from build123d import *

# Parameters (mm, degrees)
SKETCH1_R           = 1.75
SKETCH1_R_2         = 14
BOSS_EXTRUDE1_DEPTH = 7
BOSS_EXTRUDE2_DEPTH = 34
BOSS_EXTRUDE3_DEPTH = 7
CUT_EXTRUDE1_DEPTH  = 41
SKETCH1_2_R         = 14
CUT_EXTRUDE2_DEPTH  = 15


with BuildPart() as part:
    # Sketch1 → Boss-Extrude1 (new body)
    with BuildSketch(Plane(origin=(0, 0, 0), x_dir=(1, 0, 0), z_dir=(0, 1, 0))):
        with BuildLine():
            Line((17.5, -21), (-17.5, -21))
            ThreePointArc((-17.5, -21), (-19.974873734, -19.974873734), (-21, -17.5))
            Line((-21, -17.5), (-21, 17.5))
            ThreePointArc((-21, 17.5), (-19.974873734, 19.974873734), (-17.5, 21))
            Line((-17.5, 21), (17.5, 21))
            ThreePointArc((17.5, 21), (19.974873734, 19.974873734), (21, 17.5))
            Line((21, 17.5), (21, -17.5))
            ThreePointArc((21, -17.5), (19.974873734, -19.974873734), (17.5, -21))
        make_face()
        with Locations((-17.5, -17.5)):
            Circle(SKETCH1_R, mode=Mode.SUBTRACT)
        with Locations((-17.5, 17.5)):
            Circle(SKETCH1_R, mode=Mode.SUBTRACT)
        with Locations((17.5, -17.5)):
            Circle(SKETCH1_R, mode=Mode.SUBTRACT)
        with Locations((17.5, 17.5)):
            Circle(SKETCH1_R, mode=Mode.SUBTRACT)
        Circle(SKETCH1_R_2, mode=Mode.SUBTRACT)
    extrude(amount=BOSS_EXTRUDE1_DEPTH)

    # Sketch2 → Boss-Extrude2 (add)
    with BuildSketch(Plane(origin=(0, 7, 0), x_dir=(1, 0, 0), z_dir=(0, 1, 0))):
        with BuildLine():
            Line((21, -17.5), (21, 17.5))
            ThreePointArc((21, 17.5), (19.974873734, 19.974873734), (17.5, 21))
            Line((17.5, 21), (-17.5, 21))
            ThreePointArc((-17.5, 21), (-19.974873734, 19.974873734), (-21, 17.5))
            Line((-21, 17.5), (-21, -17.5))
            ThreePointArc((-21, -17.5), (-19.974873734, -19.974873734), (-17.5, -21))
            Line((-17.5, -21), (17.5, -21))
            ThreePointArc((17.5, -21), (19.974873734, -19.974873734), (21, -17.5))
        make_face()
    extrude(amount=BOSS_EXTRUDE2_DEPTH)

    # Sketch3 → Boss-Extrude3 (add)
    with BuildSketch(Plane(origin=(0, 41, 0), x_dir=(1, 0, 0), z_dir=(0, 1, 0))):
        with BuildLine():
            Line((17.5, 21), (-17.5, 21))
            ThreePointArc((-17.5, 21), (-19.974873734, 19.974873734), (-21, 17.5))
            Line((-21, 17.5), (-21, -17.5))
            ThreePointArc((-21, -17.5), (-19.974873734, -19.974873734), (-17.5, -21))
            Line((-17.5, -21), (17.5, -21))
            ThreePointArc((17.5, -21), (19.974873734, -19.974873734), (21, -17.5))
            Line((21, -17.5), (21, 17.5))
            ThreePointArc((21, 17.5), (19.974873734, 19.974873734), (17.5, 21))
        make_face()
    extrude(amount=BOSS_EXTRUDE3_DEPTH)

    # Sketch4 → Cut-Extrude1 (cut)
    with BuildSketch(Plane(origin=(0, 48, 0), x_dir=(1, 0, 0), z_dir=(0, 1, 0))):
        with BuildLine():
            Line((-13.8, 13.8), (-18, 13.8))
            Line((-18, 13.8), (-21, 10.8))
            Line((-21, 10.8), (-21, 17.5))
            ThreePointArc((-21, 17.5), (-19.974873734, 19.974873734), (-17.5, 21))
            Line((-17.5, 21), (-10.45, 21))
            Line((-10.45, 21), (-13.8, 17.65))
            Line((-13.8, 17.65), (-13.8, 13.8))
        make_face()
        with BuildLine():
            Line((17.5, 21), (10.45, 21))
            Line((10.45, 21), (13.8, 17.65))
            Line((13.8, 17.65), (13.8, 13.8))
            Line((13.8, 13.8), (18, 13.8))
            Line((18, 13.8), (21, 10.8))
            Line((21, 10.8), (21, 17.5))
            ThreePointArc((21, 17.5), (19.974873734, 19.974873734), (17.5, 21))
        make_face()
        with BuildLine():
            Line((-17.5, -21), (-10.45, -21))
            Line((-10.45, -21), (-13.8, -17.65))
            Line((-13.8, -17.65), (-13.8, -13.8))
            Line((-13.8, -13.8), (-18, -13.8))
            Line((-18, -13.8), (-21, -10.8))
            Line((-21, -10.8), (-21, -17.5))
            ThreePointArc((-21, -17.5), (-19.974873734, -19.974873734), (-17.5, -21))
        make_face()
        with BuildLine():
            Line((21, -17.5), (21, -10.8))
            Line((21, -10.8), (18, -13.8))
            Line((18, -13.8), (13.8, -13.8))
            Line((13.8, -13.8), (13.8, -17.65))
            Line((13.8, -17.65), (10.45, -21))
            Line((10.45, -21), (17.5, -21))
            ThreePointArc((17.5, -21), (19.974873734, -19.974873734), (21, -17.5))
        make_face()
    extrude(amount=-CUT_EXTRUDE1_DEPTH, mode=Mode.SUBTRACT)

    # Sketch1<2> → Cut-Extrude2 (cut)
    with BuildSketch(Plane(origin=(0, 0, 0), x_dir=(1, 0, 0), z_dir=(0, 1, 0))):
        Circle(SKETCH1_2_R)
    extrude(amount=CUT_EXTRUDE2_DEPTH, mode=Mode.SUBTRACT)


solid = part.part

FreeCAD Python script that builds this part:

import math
import FreeCAD as App
import Part
import Sketcher
from FreeCAD import Vector

doc = App.newDocument("Part")
params = doc.addObject("Spreadsheet::Sheet", "Params")
for row, (alias, value) in enumerate([
    ("sketch1_diameter", "28 mm"),
    ("sketch1_diameter2", "3.5 mm"),
    ("sketch1_radius", "3.5 mm"),
    ("sketch1_width", "35 mm"),
    ("pad1_length", "7 mm"),
    ("sketch2_radius", "3.5 mm"),
    ("sketch2_width", "35 mm"),
    ("pad2_length", "34 mm"),
    ("sketch3_radius", "3.5 mm"),
    ("sketch3_width", "35 mm"),
    ("pad3_length", "7 mm"),
    ("sketch4_radius", "3.5 mm"),
    ("sketch4_width", "4.2 mm"),
    ("sketch4_height", "6.7 mm"),
    ("sketch4_width2", "7.05 mm"),
    ("pocket1_length", "41 mm"),
    ("sketch5_diameter", "28 mm"),
    ("pocket2_length", "15 mm"),
], start=1):
    params.set(f"A{row}", alias)
    params.set(f"B{row}", "=" + value)
    params.setAlias(f"B{row}", alias)

body = doc.addObject("PartDesign::Body", "Body")

# Sketch on XZ plane
sketch1 = body.newObject("Sketcher::SketchObject", "Sketch")
sketch1.AttachmentSupport = (doc.getObject("XZ_Plane"), [""])
sketch1.MapMode = "FlatFace"
sketch1.addGeometry([
    Part.LineSegment(Vector(-17.5, 21, 0), Vector(17.5, 21, 0)),  # 0
    Part.ArcOfCircle(Part.Circle(Vector(17.5, 17.5, 0), Vector(0, 0, 1), 3.5), math.radians(0), math.radians(90)),  # 1
    Part.LineSegment(Vector(21, 17.5, 0), Vector(21, -17.5, 0)),  # 2
    Part.ArcOfCircle(Part.Circle(Vector(17.5, -17.5, 0), Vector(0, 0, 1), 3.5), math.radians(-90), math.radians(0)),  # 3
    Part.LineSegment(Vector(17.5, -21, 0), Vector(-17.5, -21, 0)),  # 4
    Part.ArcOfCircle(Part.Circle(Vector(-17.5, -17.5, 0), Vector(0, 0, 1), 3.5), math.radians(-180), math.radians(-90)),  # 5
    Part.LineSegment(Vector(-21, -17.5, 0), Vector(-21, 17.5, 0)),  # 6
    Part.ArcOfCircle(Part.Circle(Vector(-17.5, 17.5, 0), Vector(0, 0, 1), 3.5), math.radians(90), math.radians(180)),  # 7
    Part.Circle(Vector(17.5, 17.5, 0), Vector(0, 0, 1), 1.8),  # 8
    Part.Circle(Vector(-17.5, 17.5, 0), Vector(0, 0, 1), 1.8),  # 9
    Part.Circle(Vector(17.5, -17.5, 0), Vector(0, 0, 1), 1.8),  # 10
    Part.Circle(Vector(0, 0, 0), Vector(0, 0, 1), 14),  # 11
    Part.Circle(Vector(-17.5, -17.5, 0), Vector(0, 0, 1), 1.8),  # 12
], False)
sketch1.addConstraint([
    Sketcher.Constraint("Tangent", 0, 2, 1, 2),
    Sketcher.Constraint("Tangent", 1, 1, 2, 1),
    Sketcher.Constraint("Tangent", 2, 2, 3, 2),
    Sketcher.Constraint("Tangent", 3, 1, 4, 1),
    Sketcher.Constraint("Tangent", 4, 2, 5, 2),
    Sketcher.Constraint("Tangent", 5, 1, 6, 1),
    Sketcher.Constraint("Tangent", 6, 2, 7, 2),
    Sketcher.Constraint("Tangent", 7, 1, 0, 1),
    Sketcher.Constraint("Horizontal", 0),
    Sketcher.Constraint("Vertical", 2),
    Sketcher.Constraint("Horizontal", 4),
    Sketcher.Constraint("Vertical", 6),
    Sketcher.Constraint("Coincident", 11, 3, -1, 1),
    Sketcher.Constraint("Coincident", 8, 3, 1, 3),
    Sketcher.Constraint("Coincident", 9, 3, 7, 3),
    Sketcher.Constraint("Coincident", 10, 3, 3, 3),
    Sketcher.Constraint("Coincident", 12, 3, 5, 3),
    Sketcher.Constraint("Equal", 1, 3),
    Sketcher.Constraint("Equal", 3, 5),
    Sketcher.Constraint("Equal", 5, 7),
    Sketcher.Constraint("Equal", 8, 9),
    Sketcher.Constraint("Equal", 9, 10),
    Sketcher.Constraint("Equal", 10, 12),
    Sketcher.Constraint("Symmetric", 1, 3, 5, 3, -1, 1),
    Sketcher.Constraint("Equal", 4, 2),
    Sketcher.Constraint("Diameter", 11, 28.0),
    Sketcher.Constraint("Diameter", 8, 3.5),
    Sketcher.Constraint("Radius", 1, 3.5),
    Sketcher.Constraint("DistanceX", 0, 1, 0, 2, 35.0),
])
sketch1.setExpression("Constraints[25]", "Params.sketch1_diameter")
sketch1.setExpression("Constraints[26]", "Params.sketch1_diameter2")
sketch1.setExpression("Constraints[27]", "Params.sketch1_radius")
sketch1.setExpression("Constraints[28]", "Params.sketch1_width")
pad1 = body.newObject("PartDesign::Pad", "Pad")
pad1.Profile = sketch1
pad1.setExpression("Length", "Params.pad1_length")
pad1.Reversed = True

# Sketch on XZ plane
sketch2 = body.newObject("Sketcher::SketchObject", "Sketch001")
sketch2.AttachmentSupport = (doc.getObject("XZ_Plane"), [""])
sketch2.MapMode = "FlatFace"
sketch2.AttachmentOffset = App.Placement(Vector(0, 0, -7), App.Rotation())
sketch2.addGeometry([
    Part.LineSegment(Vector(21, 17.5, 0), Vector(21, -17.5, 0)),  # 0
    Part.ArcOfCircle(Part.Circle(Vector(17.5, -17.5, 0), Vector(0, 0, 1), 3.5), math.radians(-90), math.radians(0)),  # 1
    Part.LineSegment(Vector(17.5, -21, 0), Vector(-17.5, -21, 0)),  # 2
    Part.ArcOfCircle(Part.Circle(Vector(-17.5, -17.5, 0), Vector(0, 0, 1), 3.5), math.radians(-180), math.radians(-90)),  # 3
    Part.LineSegment(Vector(-21, -17.5, 0), Vector(-21, 17.5, 0)),  # 4
    Part.ArcOfCircle(Part.Circle(Vector(-17.5, 17.5, 0), Vector(0, 0, 1), 3.5), math.radians(90), math.radians(180)),  # 5
    Part.LineSegment(Vector(-17.5, 21, 0), Vector(17.5, 21, 0)),  # 6
    Part.ArcOfCircle(Part.Circle(Vector(17.5, 17.5, 0), Vector(0, 0, 1), 3.5), math.radians(0), math.radians(90)),  # 7
], False)
sketch2.addConstraint([
    Sketcher.Constraint("Tangent", 0, 2, 1, 2),
    Sketcher.Constraint("Tangent", 1, 1, 2, 1),
    Sketcher.Constraint("Tangent", 2, 2, 3, 2),
    Sketcher.Constraint("Tangent", 3, 1, 4, 1),
    Sketcher.Constraint("Tangent", 4, 2, 5, 2),
    Sketcher.Constraint("Tangent", 5, 1, 6, 1),
    Sketcher.Constraint("Tangent", 6, 2, 7, 2),
    Sketcher.Constraint("Tangent", 7, 1, 0, 1),
    Sketcher.Constraint("Vertical", 0),
    Sketcher.Constraint("Horizontal", 2),
    Sketcher.Constraint("Vertical", 4),
    Sketcher.Constraint("Horizontal", 6),
    Sketcher.Constraint("Equal", 1, 3),
    Sketcher.Constraint("Equal", 3, 5),
    Sketcher.Constraint("Equal", 5, 7),
    Sketcher.Constraint("Symmetric", 1, 3, 5, 3, -1, 1),
    Sketcher.Constraint("Equal", 6, 0),
    Sketcher.Constraint("Radius", 1, 3.5),
    Sketcher.Constraint("DistanceX", 2, 2, 2, 1, 35.0),
])
sketch2.setExpression("Constraints[17]", "Params.sketch2_radius")
sketch2.setExpression("Constraints[18]", "Params.sketch2_width")
pad2 = body.newObject("PartDesign::Pad", "Pad001")
pad2.Profile = sketch2
pad2.setExpression("Length", "Params.pad2_length")
pad2.Reversed = True

# Sketch on XZ plane
sketch3 = body.newObject("Sketcher::SketchObject", "Sketch002")
sketch3.AttachmentSupport = (doc.getObject("XZ_Plane"), [""])
sketch3.MapMode = "FlatFace"
sketch3.AttachmentOffset = App.Placement(Vector(0, 0, -41), App.Rotation())
sketch3.addGeometry([
    Part.LineSegment(Vector(17.5, -21, 0), Vector(-17.5, -21, 0)),  # 0
    Part.ArcOfCircle(Part.Circle(Vector(-17.5, -17.5, 0), Vector(0, 0, 1), 3.5), math.radians(-180), math.radians(-90)),  # 1
    Part.LineSegment(Vector(-21, -17.5, 0), Vector(-21, 17.5, 0)),  # 2
    Part.ArcOfCircle(Part.Circle(Vector(-17.5, 17.5, 0), Vector(0, 0, 1), 3.5), math.radians(90), math.radians(180)),  # 3
    Part.LineSegment(Vector(-17.5, 21, 0), Vector(17.5, 21, 0)),  # 4
    Part.ArcOfCircle(Part.Circle(Vector(17.5, 17.5, 0), Vector(0, 0, 1), 3.5), math.radians(0), math.radians(90)),  # 5
    Part.LineSegment(Vector(21, 17.5, 0), Vector(21, -17.5, 0)),  # 6
    Part.ArcOfCircle(Part.Circle(Vector(17.5, -17.5, 0), Vector(0, 0, 1), 3.5), math.radians(-90), math.radians(0)),  # 7
], False)
sketch3.addConstraint([
    Sketcher.Constraint("Tangent", 0, 2, 1, 2),
    Sketcher.Constraint("Tangent", 1, 1, 2, 1),
    Sketcher.Constraint("Tangent", 2, 2, 3, 2),
    Sketcher.Constraint("Tangent", 3, 1, 4, 1),
    Sketcher.Constraint("Tangent", 4, 2, 5, 2),
    Sketcher.Constraint("Tangent", 5, 1, 6, 1),
    Sketcher.Constraint("Tangent", 6, 2, 7, 2),
    Sketcher.Constraint("Tangent", 7, 1, 0, 1),
    Sketcher.Constraint("Horizontal", 0),
    Sketcher.Constraint("Vertical", 2),
    Sketcher.Constraint("Horizontal", 4),
    Sketcher.Constraint("Vertical", 6),
    Sketcher.Constraint("Equal", 1, 3),
    Sketcher.Constraint("Equal", 3, 5),
    Sketcher.Constraint("Equal", 5, 7),
    Sketcher.Constraint("Symmetric", 1, 3, 5, 3, -1, 1),
    Sketcher.Constraint("Equal", 4, 2),
    Sketcher.Constraint("Radius", 1, 3.5),
    Sketcher.Constraint("DistanceX", 0, 2, 0, 1, 35.0),
])
sketch3.setExpression("Constraints[17]", "Params.sketch3_radius")
sketch3.setExpression("Constraints[18]", "Params.sketch3_width")
pad3 = body.newObject("PartDesign::Pad", "Pad002")
pad3.Profile = sketch3
pad3.setExpression("Length", "Params.pad3_length")
pad3.Reversed = True

# Sketch on XZ plane
sketch4 = body.newObject("Sketcher::SketchObject", "Sketch003")
sketch4.AttachmentSupport = (doc.getObject("XZ_Plane"), [""])
sketch4.MapMode = "FlatFace"
sketch4.AttachmentOffset = App.Placement(Vector(0, 0, -48), App.Rotation())
sketch4.addGeometry([
    Part.LineSegment(Vector(-18, -13.8, 0), Vector(-13.8, -13.8, 0)),  # 0
    Part.LineSegment(Vector(-13.8, -13.8, 0), Vector(-13.8, -17.6, 0)),  # 1
    Part.LineSegment(Vector(-13.8, -17.6, 0), Vector(-10.4, -21, 0)),  # 2
    Part.LineSegment(Vector(-10.4, -21, 0), Vector(-17.5, -21, 0)),  # 3
    Part.ArcOfCircle(Part.Circle(Vector(-17.5, -17.5, 0), Vector(0, 0, 1), 3.5), math.radians(-180), math.radians(-90)),  # 4
    Part.LineSegment(Vector(-21, -17.5, 0), Vector(-21, -10.8, 0)),  # 5
    Part.LineSegment(Vector(-21, -10.8, 0), Vector(-18, -13.8, 0)),  # 6
    Part.LineSegment(Vector(17.5, -21, 0), Vector(10.4, -21, 0)),  # 7
    Part.LineSegment(Vector(10.4, -21, 0), Vector(13.8, -17.6, 0)),  # 8
    Part.LineSegment(Vector(13.8, -17.6, 0), Vector(13.8, -13.8, 0)),  # 9
    Part.LineSegment(Vector(13.8, -13.8, 0), Vector(18, -13.8, 0)),  # 10
    Part.LineSegment(Vector(18, -13.8, 0), Vector(21, -10.8, 0)),  # 11
    Part.LineSegment(Vector(21, -10.8, 0), Vector(21, -17.5, 0)),  # 12
    Part.ArcOfCircle(Part.Circle(Vector(17.5, -17.5, 0), Vector(0, 0, 1), 3.5), math.radians(-90), math.radians(0)),  # 13
    Part.LineSegment(Vector(-17.5, 21, 0), Vector(-10.4, 21, 0)),  # 14
    Part.LineSegment(Vector(-10.4, 21, 0), Vector(-13.8, 17.6, 0)),  # 15
    Part.LineSegment(Vector(-13.8, 17.6, 0), Vector(-13.8, 13.8, 0)),  # 16
    Part.LineSegment(Vector(-13.8, 13.8, 0), Vector(-18, 13.8, 0)),  # 17
    Part.LineSegment(Vector(-18, 13.8, 0), Vector(-21, 10.8, 0)),  # 18
    Part.LineSegment(Vector(-21, 10.8, 0), Vector(-21, 17.5, 0)),  # 19
    Part.ArcOfCircle(Part.Circle(Vector(-17.5, 17.5, 0), Vector(0, 0, 1), 3.5), math.radians(90), math.radians(180)),  # 20
    Part.LineSegment(Vector(21, 17.5, 0), Vector(21, 10.8, 0)),  # 21
    Part.LineSegment(Vector(21, 10.8, 0), Vector(18, 13.8, 0)),  # 22
    Part.LineSegment(Vector(18, 13.8, 0), Vector(13.8, 13.8, 0)),  # 23
    Part.LineSegment(Vector(13.8, 13.8, 0), Vector(13.8, 17.6, 0)),  # 24
    Part.LineSegment(Vector(13.8, 17.6, 0), Vector(10.4, 21, 0)),  # 25
    Part.LineSegment(Vector(10.4, 21, 0), Vector(17.5, 21, 0)),  # 26
    Part.ArcOfCircle(Part.Circle(Vector(17.5, 17.5, 0), Vector(0, 0, 1), 3.5), math.radians(0), math.radians(90)),  # 27
], False)
sketch4.addConstraint([
    Sketcher.Constraint("Coincident", 0, 2, 1, 1),
    Sketcher.Constraint("Coincident", 1, 2, 2, 1),
    Sketcher.Constraint("Coincident", 2, 2, 3, 1),
    Sketcher.Constraint("Tangent", 3, 2, 4, 2),
    Sketcher.Constraint("Tangent", 4, 1, 5, 1),
    Sketcher.Constraint("Coincident", 5, 2, 6, 1),
    Sketcher.Constraint("Coincident", 6, 2, 0, 1),
    Sketcher.Constraint("Coincident", 7, 2, 8, 1),
    Sketcher.Constraint("Coincident", 8, 2, 9, 1),
    Sketcher.Constraint("Coincident", 9, 2, 10, 1),
    Sketcher.Constraint("Coincident", 10, 2, 11, 1),
    Sketcher.Constraint("Coincident", 11, 2, 12, 1),
    Sketcher.Constraint("Tangent", 12, 2, 13, 2),
    Sketcher.Constraint("Tangent", 13, 1, 7, 1),
    Sketcher.Constraint("Coincident", 14, 2, 15, 1),
    Sketcher.Constraint("Coincident", 15, 2, 16, 1),
    Sketcher.Constraint("Coincident", 16, 2, 17, 1),
    Sketcher.Constraint("Coincident", 17, 2, 18, 1),
    Sketcher.Constraint("Coincident", 18, 2, 19, 1),
    Sketcher.Constraint("Tangent", 19, 2, 20, 2),
    Sketcher.Constraint("Tangent", 20, 1, 14, 1),
    Sketcher.Constraint("Coincident", 21, 2, 22, 1),
    Sketcher.Constraint("Coincident", 22, 2, 23, 1),
    Sketcher.Constraint("Coincident", 23, 2, 24, 1),
    Sketcher.Constraint("Coincident", 24, 2, 25, 1),
    Sketcher.Constraint("Coincident", 25, 2, 26, 1),
    Sketcher.Constraint("Tangent", 26, 2, 27, 2),
    Sketcher.Constraint("Tangent", 27, 1, 21, 1),
    Sketcher.Constraint("Horizontal", 0),
    Sketcher.Constraint("Vertical", 1),
    Sketcher.Constraint("Horizontal", 3),
    Sketcher.Constraint("Vertical", 5),
    Sketcher.Constraint("Horizontal", 7),
    Sketcher.Constraint("Vertical", 9),
    Sketcher.Constraint("Horizontal", 10),
    Sketcher.Constraint("Vertical", 12),
    Sketcher.Constraint("Horizontal", 14),
    Sketcher.Constraint("Vertical", 16),
    Sketcher.Constraint("Horizontal", 17),
    Sketcher.Constraint("Vertical", 19),
    Sketcher.Constraint("Vertical", 21),
    Sketcher.Constraint("Horizontal", 23),
    Sketcher.Constraint("Vertical", 24),
    Sketcher.Constraint("Horizontal", 26),
    Sketcher.Constraint("Equal", 4, 13),
    Sketcher.Constraint("Equal", 13, 20),
    Sketcher.Constraint("Equal", 20, 27),
    Sketcher.Constraint("Symmetric", 13, 3, 20, 3, -1, 1),
    Sketcher.Constraint("Symmetric", 4, 3, 27, 3, -1, 1),
    Sketcher.Constraint("Symmetric", 8, 2, 15, 2, -1, 1),
    Sketcher.Constraint("Symmetric", 10, 2, 17, 2, -1, 1),
    Sketcher.Constraint("Symmetric", 6, 2, 22, 2, -1, 1),
    Sketcher.Constraint("Symmetric", 1, 2, 24, 2, -1, 1),
    Sketcher.Constraint("Symmetric", 4, 3, 13, 3, -2),
    Sketcher.Constraint("Symmetric", 1, 2, 8, 2, -2),
    Sketcher.Constraint("Symmetric", 6, 2, 10, 2, -2),
    Sketcher.Constraint("Parallel", 2, 6),
    Sketcher.Constraint("Perpendicular", 6, 8),
    Sketcher.Constraint("Parallel", 8, 11),
    Sketcher.Constraint("Parallel", 11, 15),
    Sketcher.Constraint("Parallel", 15, 18),
    Sketcher.Constraint("Perpendicular", 18, 22),
    Sketcher.Constraint("Parallel", 22, 25),
    Sketcher.Constraint("Horizontal", 5, 2, 11, 2),
    Sketcher.Constraint("Radius", 4, 3.5),
    Sketcher.Constraint("DistanceX", 0, 1, 0, 2, 4.2),
    Sketcher.Constraint("DistanceY", 5, 1, 5, 2, 6.7),
    Sketcher.Constraint("DistanceY", 2, 2, -1, 1, 21.0),
    Sketcher.Constraint("DistanceX", 4, 1, -1, 1, 21.0),
    Sketcher.Constraint("DistanceX", 6, 2, -1, 1, 18.0),
    Sketcher.Constraint("DistanceX", 3, 2, 3, 1, 7.05),
])
sketch4.setExpression("Constraints[64]", "Params.sketch4_radius")
sketch4.setExpression("Constraints[65]", "Params.sketch4_width")
sketch4.setExpression("Constraints[66]", "Params.sketch4_height")
sketch4.setExpression("Constraints[70]", "Params.sketch4_width2")
pocket1 = body.newObject("PartDesign::Pocket", "Pocket")
pocket1.Profile = sketch4
pocket1.setExpression("Length", "Params.pocket1_length")
pocket1.Reversed = True

# Sketch on XZ plane
sketch5 = body.newObject("Sketcher::SketchObject", "Sketch004")
sketch5.AttachmentSupport = (doc.getObject("XZ_Plane"), [""])
sketch5.MapMode = "FlatFace"
sketch5.addGeometry(Part.Circle(Vector(0, 0, 0), Vector(0, 0, 1), 14), False)
sketch5.addConstraint([
    Sketcher.Constraint("Coincident", 0, 3, -1, 1),
    Sketcher.Constraint("Diameter", 0, 28.0),
])
sketch5.setExpression("Constraints[1]", "Params.sketch5_diameter")
pocket2 = body.newObject("PartDesign::Pocket", "Pocket001")
pocket2.Profile = sketch5
pocket2.setExpression("Length", "Params.pocket2_length")

doc.recompute()
